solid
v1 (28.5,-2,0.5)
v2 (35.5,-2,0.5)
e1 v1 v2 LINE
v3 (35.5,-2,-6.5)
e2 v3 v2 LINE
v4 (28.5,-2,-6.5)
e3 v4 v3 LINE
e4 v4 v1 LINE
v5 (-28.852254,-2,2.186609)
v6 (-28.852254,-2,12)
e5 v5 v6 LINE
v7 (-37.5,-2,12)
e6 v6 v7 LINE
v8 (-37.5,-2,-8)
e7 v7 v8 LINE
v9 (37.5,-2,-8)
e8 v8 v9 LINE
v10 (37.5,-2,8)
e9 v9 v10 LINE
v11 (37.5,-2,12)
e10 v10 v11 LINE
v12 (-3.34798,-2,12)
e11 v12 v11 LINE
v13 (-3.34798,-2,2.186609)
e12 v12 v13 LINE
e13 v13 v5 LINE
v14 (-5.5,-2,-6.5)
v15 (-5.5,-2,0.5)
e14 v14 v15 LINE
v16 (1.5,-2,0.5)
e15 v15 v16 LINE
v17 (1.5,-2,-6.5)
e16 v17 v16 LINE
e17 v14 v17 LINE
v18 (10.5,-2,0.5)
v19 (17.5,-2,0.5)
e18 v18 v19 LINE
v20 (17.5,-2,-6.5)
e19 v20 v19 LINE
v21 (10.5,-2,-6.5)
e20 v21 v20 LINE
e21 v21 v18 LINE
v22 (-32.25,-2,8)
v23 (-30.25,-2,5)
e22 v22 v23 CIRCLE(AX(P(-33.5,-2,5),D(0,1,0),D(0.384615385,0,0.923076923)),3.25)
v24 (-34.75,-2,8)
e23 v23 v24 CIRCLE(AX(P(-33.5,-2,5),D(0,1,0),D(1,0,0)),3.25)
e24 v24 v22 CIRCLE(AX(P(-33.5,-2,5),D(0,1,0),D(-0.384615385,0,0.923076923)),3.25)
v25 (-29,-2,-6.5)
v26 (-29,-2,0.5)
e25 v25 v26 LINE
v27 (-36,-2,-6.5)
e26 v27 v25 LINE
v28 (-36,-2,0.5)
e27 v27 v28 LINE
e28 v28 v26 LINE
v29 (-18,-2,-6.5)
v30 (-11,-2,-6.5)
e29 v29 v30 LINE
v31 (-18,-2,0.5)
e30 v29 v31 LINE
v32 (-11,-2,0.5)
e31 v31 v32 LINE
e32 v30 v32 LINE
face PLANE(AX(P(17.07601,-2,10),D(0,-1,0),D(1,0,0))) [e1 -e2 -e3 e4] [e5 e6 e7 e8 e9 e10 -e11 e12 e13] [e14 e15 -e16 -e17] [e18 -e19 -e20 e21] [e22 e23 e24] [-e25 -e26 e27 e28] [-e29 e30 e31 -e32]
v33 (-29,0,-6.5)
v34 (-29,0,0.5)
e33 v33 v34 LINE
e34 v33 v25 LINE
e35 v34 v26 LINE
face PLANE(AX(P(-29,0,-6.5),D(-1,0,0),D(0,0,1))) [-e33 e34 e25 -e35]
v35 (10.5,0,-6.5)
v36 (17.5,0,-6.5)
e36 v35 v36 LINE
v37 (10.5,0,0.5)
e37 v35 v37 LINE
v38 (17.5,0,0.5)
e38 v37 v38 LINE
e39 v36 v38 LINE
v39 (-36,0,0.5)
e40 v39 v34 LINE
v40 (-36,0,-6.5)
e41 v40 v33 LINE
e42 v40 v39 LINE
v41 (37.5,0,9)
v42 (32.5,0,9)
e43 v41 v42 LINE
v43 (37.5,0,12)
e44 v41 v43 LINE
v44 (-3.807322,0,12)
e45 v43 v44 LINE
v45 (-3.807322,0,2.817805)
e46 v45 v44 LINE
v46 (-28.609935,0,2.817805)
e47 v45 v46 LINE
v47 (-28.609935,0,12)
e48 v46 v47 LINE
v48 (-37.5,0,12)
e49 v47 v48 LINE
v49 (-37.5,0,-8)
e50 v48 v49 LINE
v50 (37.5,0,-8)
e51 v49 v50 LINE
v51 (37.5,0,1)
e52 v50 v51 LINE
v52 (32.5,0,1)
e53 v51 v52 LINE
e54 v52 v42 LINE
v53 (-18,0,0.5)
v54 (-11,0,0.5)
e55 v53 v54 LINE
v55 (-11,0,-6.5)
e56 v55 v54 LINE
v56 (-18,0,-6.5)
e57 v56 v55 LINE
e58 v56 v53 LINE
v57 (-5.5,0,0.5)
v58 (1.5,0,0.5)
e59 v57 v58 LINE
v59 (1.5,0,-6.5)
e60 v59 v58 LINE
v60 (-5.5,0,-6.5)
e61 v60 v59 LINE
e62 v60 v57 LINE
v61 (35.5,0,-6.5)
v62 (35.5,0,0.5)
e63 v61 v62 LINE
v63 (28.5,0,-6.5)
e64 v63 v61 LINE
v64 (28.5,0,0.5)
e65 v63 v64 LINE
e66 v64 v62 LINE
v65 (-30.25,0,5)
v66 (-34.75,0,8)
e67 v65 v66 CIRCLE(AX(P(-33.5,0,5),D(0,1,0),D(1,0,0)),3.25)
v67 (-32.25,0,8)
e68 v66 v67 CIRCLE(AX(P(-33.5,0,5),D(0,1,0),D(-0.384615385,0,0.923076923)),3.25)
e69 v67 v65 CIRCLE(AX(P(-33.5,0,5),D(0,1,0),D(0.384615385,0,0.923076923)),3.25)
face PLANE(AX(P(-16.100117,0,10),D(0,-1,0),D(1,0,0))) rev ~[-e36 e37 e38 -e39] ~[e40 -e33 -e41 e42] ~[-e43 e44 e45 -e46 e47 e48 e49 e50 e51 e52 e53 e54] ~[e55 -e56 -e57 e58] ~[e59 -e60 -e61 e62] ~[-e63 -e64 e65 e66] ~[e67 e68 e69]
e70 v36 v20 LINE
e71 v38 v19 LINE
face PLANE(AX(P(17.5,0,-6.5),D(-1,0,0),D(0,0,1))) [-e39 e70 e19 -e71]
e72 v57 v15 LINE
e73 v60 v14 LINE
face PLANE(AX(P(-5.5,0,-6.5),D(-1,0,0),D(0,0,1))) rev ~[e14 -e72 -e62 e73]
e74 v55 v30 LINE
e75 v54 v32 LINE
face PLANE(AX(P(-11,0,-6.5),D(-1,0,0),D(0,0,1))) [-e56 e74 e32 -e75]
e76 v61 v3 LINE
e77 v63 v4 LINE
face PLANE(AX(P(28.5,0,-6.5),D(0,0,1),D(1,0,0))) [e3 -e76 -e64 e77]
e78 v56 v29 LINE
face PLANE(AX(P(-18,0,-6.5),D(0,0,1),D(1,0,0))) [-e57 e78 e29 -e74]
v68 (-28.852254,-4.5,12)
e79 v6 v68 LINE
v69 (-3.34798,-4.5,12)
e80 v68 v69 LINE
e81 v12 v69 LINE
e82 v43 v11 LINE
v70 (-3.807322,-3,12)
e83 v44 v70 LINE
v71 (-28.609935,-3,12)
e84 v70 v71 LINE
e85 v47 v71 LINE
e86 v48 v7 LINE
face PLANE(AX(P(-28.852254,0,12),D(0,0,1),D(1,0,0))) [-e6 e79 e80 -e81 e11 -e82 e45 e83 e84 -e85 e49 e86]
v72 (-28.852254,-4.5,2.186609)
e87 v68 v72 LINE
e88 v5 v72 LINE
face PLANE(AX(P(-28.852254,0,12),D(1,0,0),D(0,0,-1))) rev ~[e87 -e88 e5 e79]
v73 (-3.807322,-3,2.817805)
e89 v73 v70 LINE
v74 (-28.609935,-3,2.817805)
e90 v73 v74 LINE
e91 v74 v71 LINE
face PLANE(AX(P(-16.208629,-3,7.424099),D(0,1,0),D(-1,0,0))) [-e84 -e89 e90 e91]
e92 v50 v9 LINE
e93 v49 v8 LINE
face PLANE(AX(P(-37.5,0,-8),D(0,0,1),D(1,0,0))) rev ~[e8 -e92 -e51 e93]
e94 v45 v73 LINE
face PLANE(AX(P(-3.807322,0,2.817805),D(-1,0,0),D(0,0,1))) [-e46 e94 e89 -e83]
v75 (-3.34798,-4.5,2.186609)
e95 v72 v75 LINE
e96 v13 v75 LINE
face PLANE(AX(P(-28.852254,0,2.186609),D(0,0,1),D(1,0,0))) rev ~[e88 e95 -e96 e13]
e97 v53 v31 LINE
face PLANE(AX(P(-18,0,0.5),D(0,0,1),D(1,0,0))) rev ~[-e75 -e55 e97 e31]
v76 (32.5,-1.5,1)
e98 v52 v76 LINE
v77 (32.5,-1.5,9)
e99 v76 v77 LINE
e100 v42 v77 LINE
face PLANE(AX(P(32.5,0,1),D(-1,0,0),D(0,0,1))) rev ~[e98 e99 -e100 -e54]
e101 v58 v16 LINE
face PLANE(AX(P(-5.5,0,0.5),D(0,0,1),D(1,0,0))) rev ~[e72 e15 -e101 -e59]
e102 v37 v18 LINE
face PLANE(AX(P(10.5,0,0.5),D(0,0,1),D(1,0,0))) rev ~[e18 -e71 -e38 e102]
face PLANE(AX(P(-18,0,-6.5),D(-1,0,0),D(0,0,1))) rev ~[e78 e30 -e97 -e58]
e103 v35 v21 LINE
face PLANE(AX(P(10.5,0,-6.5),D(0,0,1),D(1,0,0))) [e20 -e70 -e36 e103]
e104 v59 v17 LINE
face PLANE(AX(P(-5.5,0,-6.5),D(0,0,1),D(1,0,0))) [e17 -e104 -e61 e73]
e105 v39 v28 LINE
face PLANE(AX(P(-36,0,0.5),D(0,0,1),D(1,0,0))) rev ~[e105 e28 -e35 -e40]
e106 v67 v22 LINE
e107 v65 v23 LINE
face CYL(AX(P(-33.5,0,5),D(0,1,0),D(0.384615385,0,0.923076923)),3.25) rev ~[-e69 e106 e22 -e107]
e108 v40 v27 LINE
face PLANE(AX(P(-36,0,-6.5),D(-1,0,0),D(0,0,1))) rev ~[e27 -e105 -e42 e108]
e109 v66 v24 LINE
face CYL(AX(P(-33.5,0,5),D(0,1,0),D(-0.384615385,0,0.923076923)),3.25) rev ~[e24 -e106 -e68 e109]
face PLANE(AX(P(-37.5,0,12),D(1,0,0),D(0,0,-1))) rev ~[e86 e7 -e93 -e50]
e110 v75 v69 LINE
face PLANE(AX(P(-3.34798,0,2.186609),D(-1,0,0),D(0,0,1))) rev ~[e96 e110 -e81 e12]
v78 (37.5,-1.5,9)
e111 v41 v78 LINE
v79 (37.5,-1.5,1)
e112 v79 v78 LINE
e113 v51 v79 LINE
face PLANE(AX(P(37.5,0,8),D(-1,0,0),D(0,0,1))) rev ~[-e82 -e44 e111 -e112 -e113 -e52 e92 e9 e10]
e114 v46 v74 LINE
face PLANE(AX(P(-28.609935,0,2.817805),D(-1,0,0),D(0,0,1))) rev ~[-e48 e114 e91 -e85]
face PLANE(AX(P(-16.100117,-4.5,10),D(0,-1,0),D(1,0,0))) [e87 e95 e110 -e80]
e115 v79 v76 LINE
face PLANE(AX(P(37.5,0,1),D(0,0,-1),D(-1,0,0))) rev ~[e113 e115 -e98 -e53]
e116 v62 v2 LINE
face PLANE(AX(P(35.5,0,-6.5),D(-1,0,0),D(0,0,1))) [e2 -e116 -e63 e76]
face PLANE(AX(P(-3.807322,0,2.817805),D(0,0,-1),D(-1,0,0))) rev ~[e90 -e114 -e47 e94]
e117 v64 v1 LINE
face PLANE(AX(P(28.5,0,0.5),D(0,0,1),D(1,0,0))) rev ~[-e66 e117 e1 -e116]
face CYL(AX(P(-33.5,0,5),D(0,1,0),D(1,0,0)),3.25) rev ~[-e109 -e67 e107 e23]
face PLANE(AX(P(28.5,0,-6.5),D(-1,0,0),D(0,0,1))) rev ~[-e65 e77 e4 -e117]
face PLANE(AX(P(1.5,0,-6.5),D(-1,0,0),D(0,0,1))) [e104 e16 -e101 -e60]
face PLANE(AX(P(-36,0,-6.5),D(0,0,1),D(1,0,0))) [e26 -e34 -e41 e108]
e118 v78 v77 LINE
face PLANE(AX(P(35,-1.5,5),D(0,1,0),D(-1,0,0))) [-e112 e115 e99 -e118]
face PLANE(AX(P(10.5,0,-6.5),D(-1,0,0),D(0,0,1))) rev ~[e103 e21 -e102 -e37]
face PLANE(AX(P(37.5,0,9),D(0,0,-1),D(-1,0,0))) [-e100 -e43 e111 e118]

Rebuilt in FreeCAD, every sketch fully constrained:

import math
import FreeCAD as App
import Part
import Sketcher


def add_polygon(sketch, points):
    """Adds a closed chain of lines whose ends are joined by coincident constraints."""
    first, n = sketch.GeometryCount, len(points)
    for a, b in zip(points, points[1:] + points[:1]):
        sketch.addGeometry(Part.LineSegment(App.Vector(*a, 0), App.Vector(*b, 0)), False)
    for i in range(n):
        sketch.addConstraint(Sketcher.Constraint("Coincident", first + i, 2, first + (i + 1) % n, 1))

doc = App.newDocument("Part")
body = doc.addObject("PartDesign::Body", "Body")

# Sketch on XZ plane
sketch1 = body.newObject("Sketcher::SketchObject", "Sketch")
sketch1.AttachmentSupport = (doc.getObject("XZ_Plane"), [""])
sketch1.MapMode = "FlatFace"
add_polygon(sketch1, [(-3.34798, 12), (-3.34798, 2.186609), (-28.852254, 2.186609), (-28.852254, 12), (-37.5, 12), (-37.5, -8), (37.5, -8), (37.5, 8), (37.5, 12)])  # lines 0-8
add_polygon(sketch1, [(-29, -6.5), (-36, -6.5), (-36, 0.5), (-29, 0.5)])  # lines 9-12
add_polygon(sketch1, [(-11, -6.5), (-18, -6.5), (-18, 0.5), (-11, 0.5)])  # lines 13-16
add_polygon(sketch1, [(1.5, -6.5), (-5.5, -6.5), (-5.5, 0.5), (1.5, 0.5)])  # lines 17-20
add_polygon(sketch1, [(17.5, -6.5), (10.5, -6.5), (10.5, 0.5), (17.5, 0.5)])  # lines 21-24
add_polygon(sketch1, [(35.5, -6.5), (28.5, -6.5), (28.5, 0.5), (35.5, 0.5)])  # lines 25-28
sketch1.addGeometry(Part.ArcOfCircle(Part.Circle(App.Vector(-33.5, 5, 0), App.Vector(0, 0, 1), 3.25), math.radians(0), math.radians(67.380135)), False)  # 29
sketch1.addGeometry(Part.ArcOfCircle(Part.Circle(App.Vector(-33.5, 5, 0), App.Vector(0, 0, 1), 3.25), math.radians(112.619865), math.radians(360)), False)  # 30
sketch1.addGeometry(Part.ArcOfCircle(Part.Circle(App.Vector(-33.5, 5, 0), App.Vector(0, 0, 1), 3.25), math.radians(67.380135), math.radians(112.619865)), False)  # 31
sketch1.addConstraint([
    Sketcher.Constraint("Tangent", 29, 1, 30, 2),
    Sketcher.Constraint("Tangent", 30, 1, 31, 2),
    Sketcher.Constraint("Tangent", 31, 1, 29, 2),
    Sketcher.Constraint("Vertical", 0),
    Sketcher.Constraint("Horizontal", 1),
    Sketcher.Constraint("Vertical", 2),
    Sketcher.Constraint("Horizontal", 3),
    Sketcher.Constraint("Vertical", 4),
    Sketcher.Constraint("Horizontal", 5),
    Sketcher.Constraint("Vertical", 6),
    Sketcher.Constraint("Vertical", 7),
    Sketcher.Constraint("Horizontal", 8),
    Sketcher.Constraint("Horizontal", 9),
    Sketcher.Constraint("Vertical", 10),
    Sketcher.Constraint("Horizontal", 11),
    Sketcher.Constraint("Vertical", 12),
    Sketcher.Constraint("Horizontal", 13),
    Sketcher.Constraint("Vertical", 14),
    Sketcher.Constraint("Horizontal", 15),
    Sketcher.Constraint("Vertical", 16),
    Sketcher.Constraint("Horizontal", 17),
    Sketcher.Constraint("Vertical", 18),
    Sketcher.Constraint("Horizontal", 19),
    Sketcher.Constraint("Vertical", 20),
    Sketcher.Constraint("Horizontal", 21),
    Sketcher.Constraint("Vertical", 22),
    Sketcher.Constraint("Horizontal", 23),
    Sketcher.Constraint("Vertical", 24),
    Sketcher.Constraint("Horizontal", 25),
    Sketcher.Constraint("Vertical", 26),
    Sketcher.Constraint("Horizontal", 27),
    Sketcher.Constraint("Vertical", 28),
    Sketcher.Constraint("Symmetric", 4, 2, 6, 2, -1, 1),
    Sketcher.Constraint("Horizontal", 3, 2, 7, 2),
    Sketcher.Constraint("Horizontal", 12, 2, 13, 2),
    Sketcher.Constraint("Horizontal", 11, 2, 14, 2),
    Sketcher.Constraint("Horizontal", 16, 2, 17, 2),
    Sketcher.Constraint("Horizontal", 15, 2, 18, 2),
    Sketcher.Constraint("Horizontal", 20, 2, 21, 2),
    Sketcher.Constraint("Horizontal", 19, 2, 22, 2),
    Sketcher.Constraint("Horizontal", 24, 2, 25, 2),
    Sketcher.Constraint("Horizontal", 23, 2, 26, 2),
    Sketcher.Constraint("Horizontal", 31, 3, 29, 1),
    Sketcher.Constraint("Horizontal", 6, 2, 30, 1),
    Sketcher.Constraint("Horizontal", 30, 1, 31, 1),
    Sketcher.Constraint("Equal", 11, 13),
    Sketcher.Constraint("Equal", 15, 17),
    Sketcher.Constraint("Equal", 19, 21),
    Sketcher.Constraint("Equal", 23, 25),
    Sketcher.Constraint("Equal", 27, 10),
    Sketcher.Constraint("DistanceX", 5, 1, 5, 2, 75.0),
    Sketcher.Constraint("DistanceX", 9, 2, 9, 1, 7.0),
    Sketcher.Constraint("DistanceY", 4, 2, 4, 1, 20.0),
    Sketcher.Constraint("DistanceY", 6, 1, 6, 2, 16.0),
    Sketcher.Constraint("Radius", 29, 3.25),
    Sketcher.Constraint("DistanceY", -1, 1, 29, 3, 5.0),
    Sketcher.Constraint("DistanceX", 9, 2, -1, 1, 36.0),
    Sketcher.Constraint("DistanceX", 13, 2, -1, 1, 18.0),
    Sketcher.Constraint("DistanceX", 3, 2, 29, 3, 4.0),
    Sketcher.Constraint("DistanceX", 20, 2, 21, 2, 9.0),
    Sketcher.Constraint("DistanceX", 25, 2, 5, 2, 9.0),
    Sketcher.Constraint("DistanceX", 24, 2, 25, 2, 11.0),
    Sketcher.Constraint("DistanceY", 9, 2, -1, 1, 6.5),
    Sketcher.Constraint("DistanceX", 8, 2, 8, 1, 40.84798),
    Sketcher.Constraint("DistanceY", 0, 2, 0, 1, 9.813391),
    Sketcher.Constraint("DistanceX", 1, 2, 1, 1, 25.504274),
])
pad1 = body.newObject("PartDesign::Pad", "Pad")
pad1.Profile = sketch1
pad1.Length = 2

# Sketch on XZ plane
sketch2 = body.newObject("Sketcher::SketchObject", "Sketch001")
sketch2.AttachmentSupport = (doc.getObject("XZ_Plane"), [""])
sketch2.MapMode = "FlatFace"
add_polygon(sketch2, [(-28.852254, 12), (-28.852254, 2.186609), (-3.34798, 2.186609), (-3.34798, 12)])  # lines 0-3
sketch2.addConstraint([
    Sketcher.Constraint("Vertical", 0),
    Sketcher.Constraint("Horizontal", 1),
    Sketcher.Constraint("Vertical", 2),
    Sketcher.Constraint("Horizontal", 3),
    Sketcher.Constraint("DistanceY", -1, 1, 2, 2, 12.0),
    Sketcher.Constraint("DistanceY", 0, 2, 0, 1, 9.813391),
    Sketcher.Constraint("DistanceX", 1, 1, 1, 2, 25.504274),
    Sketcher.Constraint("DistanceX", 1, 2, -1, 1, 3.34798),
])
pad2 = body.newObject("PartDesign::Pad", "Pad001")
pad2.Profile = sketch2
pad2.Length = 4.5

# Sketch on XZ plane
sketch3 = body.newObject("Sketcher::SketchObject", "Sketch002")
sketch3.AttachmentSupport = (doc.getObject("XZ_Plane"), [""])
sketch3.MapMode = "FlatFace"
add_polygon(sketch3, [(37.5, 9), (37.5, 1), (32.5, 1), (32.5, 9)])  # lines 0-3
sketch3.addConstraint([
    Sketcher.Constraint("Vertical", 0),
    Sketcher.Constraint("Horizontal", 1),
    Sketcher.Constraint("Vertical", 2),
    Sketcher.Constraint("Horizontal", 3),
    Sketcher.Constraint("DistanceX", 1, 2, 1, 1, 5.0),
    Sketcher.Constraint("DistanceY", 0, 2, 0, 1, 8.0),
    Sketcher.Constraint("DistanceY", -1, 1, 0, 2, 1.0),
    Sketcher.Constraint("DistanceX", -1, 1, 0, 2, 37.5),
])
pocket1 = body.newObject("PartDesign::Pocket", "Pocket")
pocket1.Profile = sketch3
pocket1.Length = 1.5
pocket1.Reversed = True

# Sketch on XZ plane
sketch4 = body.newObject("Sketcher::SketchObject", "Sketch003")
sketch4.AttachmentSupport = (doc.getObject("XZ_Plane"), [""])
sketch4.MapMode = "FlatFace"
add_polygon(sketch4, [(-3.807322, 12.030394), (-3.807322, 2.817805), (-28.609935, 2.817805), (-28.609935, 12.030394)])  # lines 0-3
sketch4.addConstraint([
    Sketcher.Constraint("Vertical", 0),
    Sketcher.Constraint("Horizontal", 1),
    Sketcher.Constraint("Vertical", 2),
    Sketcher.Constraint("Horizontal", 3),
    Sketcher.Constraint("DistanceY", 0, 2, 0, 1, 9.212589),
    Sketcher.Constraint("DistanceX", 1, 2, 1, 1, 24.802613),
    Sketcher.Constraint("DistanceX", 0, 2, -1, 1, 3.807322),
    Sketcher.Constraint("DistanceY", -1, 1, 0, 2, 2.817805),
])
pocket2 = body.newObject("PartDesign::Pocket", "Pocket001")
pocket2.Profile = sketch4
pocket2.Length = 3
pocket2.Reversed = True

doc.recompute()
